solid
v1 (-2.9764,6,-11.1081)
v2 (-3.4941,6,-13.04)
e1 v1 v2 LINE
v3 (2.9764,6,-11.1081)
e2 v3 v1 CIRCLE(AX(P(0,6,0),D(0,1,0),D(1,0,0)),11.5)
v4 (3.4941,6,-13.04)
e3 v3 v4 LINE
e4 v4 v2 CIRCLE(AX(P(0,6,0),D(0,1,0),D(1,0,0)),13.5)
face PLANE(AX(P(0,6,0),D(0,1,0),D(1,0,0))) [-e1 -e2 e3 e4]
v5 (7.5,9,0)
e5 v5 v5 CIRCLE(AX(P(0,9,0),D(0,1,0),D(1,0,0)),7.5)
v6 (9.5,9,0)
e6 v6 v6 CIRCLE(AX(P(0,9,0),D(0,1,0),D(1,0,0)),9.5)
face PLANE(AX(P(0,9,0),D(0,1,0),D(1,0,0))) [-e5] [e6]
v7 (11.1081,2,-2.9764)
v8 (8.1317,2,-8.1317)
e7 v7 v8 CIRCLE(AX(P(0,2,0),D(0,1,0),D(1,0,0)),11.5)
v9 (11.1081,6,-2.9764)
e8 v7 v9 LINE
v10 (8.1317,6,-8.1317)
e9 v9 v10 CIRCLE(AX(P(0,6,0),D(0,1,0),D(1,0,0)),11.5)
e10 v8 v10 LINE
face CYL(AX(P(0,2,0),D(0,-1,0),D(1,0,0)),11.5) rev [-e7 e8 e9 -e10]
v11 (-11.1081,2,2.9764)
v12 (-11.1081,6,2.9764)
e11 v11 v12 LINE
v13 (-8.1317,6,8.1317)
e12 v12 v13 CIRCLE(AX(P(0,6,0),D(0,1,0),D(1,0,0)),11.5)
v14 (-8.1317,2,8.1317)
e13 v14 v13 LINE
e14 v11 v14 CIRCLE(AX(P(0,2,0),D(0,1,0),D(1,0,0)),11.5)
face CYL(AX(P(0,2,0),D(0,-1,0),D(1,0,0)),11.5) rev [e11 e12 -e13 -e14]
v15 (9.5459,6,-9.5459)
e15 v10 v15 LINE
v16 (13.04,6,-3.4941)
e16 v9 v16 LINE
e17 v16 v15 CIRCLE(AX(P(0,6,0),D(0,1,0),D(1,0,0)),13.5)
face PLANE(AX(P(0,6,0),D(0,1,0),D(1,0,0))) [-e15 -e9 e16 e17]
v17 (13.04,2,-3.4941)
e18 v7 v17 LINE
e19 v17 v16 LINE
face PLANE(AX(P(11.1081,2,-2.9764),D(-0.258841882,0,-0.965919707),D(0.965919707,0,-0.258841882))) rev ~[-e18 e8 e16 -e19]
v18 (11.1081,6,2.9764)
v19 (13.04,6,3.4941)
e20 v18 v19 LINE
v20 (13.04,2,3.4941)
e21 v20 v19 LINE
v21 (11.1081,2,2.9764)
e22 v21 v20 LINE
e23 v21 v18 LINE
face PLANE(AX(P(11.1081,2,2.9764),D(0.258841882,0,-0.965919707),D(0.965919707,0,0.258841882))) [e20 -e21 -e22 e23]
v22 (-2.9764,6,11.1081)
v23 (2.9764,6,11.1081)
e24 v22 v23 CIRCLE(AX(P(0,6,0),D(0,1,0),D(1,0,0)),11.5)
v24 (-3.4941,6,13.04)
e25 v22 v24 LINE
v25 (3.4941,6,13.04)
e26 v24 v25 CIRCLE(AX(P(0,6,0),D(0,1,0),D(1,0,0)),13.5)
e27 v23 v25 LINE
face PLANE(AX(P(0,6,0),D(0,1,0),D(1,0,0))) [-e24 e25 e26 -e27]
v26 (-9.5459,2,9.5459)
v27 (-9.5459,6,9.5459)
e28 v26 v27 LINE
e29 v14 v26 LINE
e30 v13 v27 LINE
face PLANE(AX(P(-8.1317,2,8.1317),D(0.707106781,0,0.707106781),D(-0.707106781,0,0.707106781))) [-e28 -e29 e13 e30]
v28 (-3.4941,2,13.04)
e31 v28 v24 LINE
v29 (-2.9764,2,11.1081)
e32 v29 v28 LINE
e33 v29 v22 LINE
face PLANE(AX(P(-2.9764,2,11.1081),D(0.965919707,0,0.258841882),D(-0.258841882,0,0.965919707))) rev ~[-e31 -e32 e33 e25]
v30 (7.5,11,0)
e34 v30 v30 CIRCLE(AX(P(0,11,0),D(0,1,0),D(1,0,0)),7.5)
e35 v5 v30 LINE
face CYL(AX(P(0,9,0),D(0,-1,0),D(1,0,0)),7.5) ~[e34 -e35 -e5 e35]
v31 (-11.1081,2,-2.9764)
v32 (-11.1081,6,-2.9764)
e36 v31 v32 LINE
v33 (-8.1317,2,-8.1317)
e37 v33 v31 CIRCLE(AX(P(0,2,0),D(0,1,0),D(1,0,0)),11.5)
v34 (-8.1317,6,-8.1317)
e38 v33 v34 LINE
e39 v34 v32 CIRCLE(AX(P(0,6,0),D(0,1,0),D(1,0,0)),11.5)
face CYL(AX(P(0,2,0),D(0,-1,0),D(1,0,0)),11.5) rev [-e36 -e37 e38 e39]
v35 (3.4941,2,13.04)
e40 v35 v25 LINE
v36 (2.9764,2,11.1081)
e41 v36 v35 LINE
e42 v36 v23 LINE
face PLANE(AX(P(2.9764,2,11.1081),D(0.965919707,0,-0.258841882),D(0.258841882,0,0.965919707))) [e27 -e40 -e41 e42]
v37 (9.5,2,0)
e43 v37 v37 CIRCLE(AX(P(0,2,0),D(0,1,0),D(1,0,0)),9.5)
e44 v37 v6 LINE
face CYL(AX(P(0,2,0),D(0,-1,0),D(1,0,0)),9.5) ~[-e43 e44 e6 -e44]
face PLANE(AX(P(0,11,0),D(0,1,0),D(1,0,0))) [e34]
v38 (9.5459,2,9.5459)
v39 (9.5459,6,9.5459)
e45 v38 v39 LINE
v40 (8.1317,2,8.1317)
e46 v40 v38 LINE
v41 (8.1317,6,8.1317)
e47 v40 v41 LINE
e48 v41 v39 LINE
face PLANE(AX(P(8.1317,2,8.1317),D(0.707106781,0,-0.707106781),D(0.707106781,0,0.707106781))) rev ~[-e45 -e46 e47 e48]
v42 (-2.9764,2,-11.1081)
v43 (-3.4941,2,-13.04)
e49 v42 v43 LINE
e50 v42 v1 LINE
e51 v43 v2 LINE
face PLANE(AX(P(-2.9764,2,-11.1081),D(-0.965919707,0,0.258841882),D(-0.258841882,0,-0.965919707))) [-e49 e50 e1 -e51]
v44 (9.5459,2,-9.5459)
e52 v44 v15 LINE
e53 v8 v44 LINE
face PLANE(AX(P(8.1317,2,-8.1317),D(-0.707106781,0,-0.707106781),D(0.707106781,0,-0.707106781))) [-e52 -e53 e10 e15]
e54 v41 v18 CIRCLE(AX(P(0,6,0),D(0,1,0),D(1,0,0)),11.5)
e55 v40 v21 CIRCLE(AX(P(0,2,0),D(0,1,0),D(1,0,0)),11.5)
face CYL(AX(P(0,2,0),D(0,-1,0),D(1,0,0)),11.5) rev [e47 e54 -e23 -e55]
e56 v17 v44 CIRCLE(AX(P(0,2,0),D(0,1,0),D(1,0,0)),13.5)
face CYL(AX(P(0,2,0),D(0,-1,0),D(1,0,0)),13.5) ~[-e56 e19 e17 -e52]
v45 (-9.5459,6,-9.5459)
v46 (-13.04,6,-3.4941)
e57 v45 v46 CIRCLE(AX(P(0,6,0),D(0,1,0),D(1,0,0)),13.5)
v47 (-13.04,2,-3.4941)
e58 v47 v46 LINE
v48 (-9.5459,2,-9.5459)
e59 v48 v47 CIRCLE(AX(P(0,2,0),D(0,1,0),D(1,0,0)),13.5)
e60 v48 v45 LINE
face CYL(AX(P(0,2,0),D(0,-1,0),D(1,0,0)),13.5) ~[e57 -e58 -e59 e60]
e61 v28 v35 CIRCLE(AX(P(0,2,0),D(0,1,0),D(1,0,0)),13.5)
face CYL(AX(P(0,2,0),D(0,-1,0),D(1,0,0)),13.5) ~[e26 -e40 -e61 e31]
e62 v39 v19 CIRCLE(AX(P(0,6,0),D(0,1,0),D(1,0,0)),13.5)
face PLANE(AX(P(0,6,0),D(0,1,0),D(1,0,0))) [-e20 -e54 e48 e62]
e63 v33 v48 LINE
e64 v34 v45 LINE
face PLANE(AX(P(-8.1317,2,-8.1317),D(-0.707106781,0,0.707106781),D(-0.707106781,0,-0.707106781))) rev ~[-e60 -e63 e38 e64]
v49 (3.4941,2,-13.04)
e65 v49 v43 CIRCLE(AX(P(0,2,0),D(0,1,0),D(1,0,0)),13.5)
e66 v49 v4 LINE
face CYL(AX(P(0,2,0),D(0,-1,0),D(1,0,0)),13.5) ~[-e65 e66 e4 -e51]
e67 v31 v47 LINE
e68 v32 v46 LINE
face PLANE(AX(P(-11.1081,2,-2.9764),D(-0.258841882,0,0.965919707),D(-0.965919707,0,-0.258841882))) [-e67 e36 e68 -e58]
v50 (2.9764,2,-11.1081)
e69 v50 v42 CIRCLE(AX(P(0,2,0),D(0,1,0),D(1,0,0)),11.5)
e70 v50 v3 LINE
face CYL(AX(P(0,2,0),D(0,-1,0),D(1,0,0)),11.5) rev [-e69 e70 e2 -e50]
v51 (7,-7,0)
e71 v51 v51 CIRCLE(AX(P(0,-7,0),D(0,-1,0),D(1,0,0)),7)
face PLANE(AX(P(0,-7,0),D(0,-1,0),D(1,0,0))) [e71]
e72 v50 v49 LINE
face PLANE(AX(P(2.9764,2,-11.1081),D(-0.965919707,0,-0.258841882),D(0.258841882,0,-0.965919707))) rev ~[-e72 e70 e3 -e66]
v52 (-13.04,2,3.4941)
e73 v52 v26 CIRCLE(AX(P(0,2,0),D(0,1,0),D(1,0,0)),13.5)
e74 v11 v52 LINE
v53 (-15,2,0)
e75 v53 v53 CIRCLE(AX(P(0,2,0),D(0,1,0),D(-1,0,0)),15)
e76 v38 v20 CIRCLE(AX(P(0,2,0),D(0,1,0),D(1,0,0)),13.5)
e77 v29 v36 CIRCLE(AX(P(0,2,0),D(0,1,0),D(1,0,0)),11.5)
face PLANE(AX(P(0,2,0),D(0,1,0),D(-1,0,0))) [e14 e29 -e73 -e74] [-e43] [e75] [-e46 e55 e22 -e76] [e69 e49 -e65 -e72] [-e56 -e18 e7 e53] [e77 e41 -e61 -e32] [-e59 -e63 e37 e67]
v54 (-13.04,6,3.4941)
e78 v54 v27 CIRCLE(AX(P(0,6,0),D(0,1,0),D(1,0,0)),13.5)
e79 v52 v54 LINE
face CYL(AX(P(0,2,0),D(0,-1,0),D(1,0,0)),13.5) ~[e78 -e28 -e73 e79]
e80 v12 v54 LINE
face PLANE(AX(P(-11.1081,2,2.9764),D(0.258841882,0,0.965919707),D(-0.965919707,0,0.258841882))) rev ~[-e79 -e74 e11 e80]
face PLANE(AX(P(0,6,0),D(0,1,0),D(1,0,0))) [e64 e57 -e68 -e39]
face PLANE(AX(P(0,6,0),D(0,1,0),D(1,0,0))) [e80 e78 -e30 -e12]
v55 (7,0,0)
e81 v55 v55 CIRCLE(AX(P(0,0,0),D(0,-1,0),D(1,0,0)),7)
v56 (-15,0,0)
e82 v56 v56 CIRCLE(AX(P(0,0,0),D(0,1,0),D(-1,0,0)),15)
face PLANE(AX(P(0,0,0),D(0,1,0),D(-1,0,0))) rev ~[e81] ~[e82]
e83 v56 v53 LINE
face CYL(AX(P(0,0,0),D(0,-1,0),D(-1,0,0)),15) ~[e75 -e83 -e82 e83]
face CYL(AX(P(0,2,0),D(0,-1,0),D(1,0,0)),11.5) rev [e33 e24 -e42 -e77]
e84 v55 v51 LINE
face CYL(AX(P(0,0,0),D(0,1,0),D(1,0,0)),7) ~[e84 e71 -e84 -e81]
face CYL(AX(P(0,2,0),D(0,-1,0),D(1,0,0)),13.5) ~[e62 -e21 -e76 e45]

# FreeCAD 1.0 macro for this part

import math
import FreeCAD as App
import Part
import Sketcher
from FreeCAD import Vector

doc = App.newDocument("Part")
body = doc.addObject("PartDesign::Body", "Body")

# Sketch on XZ plane
sketch1 = body.newObject("Sketcher::SketchObject", "Sketch")
sketch1.AttachmentSupport = (doc.getObject("XZ_Plane"), [""])
sketch1.MapMode = "FlatFace"
sketch1.addGeometry(Part.Circle(Vector(0, 0, 0), Vector(0, 0, 1), 15), False)
sketch1.addConstraint(Sketcher.Constraint("Coincident", 0, 3, -1, 1))
sketch1.addConstraint(Sketcher.Constraint("Diameter", 0, 30.0))
pad1 = body.newObject("PartDesign::Pad", "Pad")
pad1.Profile = sketch1
pad1.Length = 2
pad1.Reversed = True

# Sketch on XZ plane
sketch2 = body.newObject("Sketcher::SketchObject", "Sketch001")
sketch2.AttachmentSupport = (doc.getObject("XZ_Plane"), [""])
sketch2.MapMode = "FlatFace"
sketch2.AttachmentOffset = App.Placement(Vector(0, 0, -2), App.Rotation())
sketch2.addGeometry(Part.LineSegment(Vector(11.1081, -2.9764, 0), Vector(13.04, -3.4941, 0)), False)
sketch2.addGeometry(Part.ArcOfCircle(Part.Circle(Vector(0, 0, 0), Vector(0, 0, 1), 13.5), math.radians(-45), math.radians(-15.000174)), False)
sketch2.addGeometry(Part.LineSegment(Vector(9.5459, -9.5459, 0), Vector(8.1317, -8.1317, 0)), False)
sketch2.addGeometry(Part.ArcOfCircle(Part.Circle(Vector(0, 0, 0), Vector(0, 0, 1), 11.5), math.radians(-45), math.radians(-14.999969)), False)
sketch2.addGeometry(Part.ArcOfCircle(Part.Circle(Vector(0, 0, 0), Vector(0, 0, 1), 13.5), math.radians(15.000174), math.radians(45)), False)
sketch2.addGeometry(Part.LineSegment(Vector(13.04, 3.4941, 0), Vector(11.1081, 2.9764, 0)), False)
sketch2.addGeometry(Part.ArcOfCircle(Part.Circle(Vector(0, 0, 0), Vector(0, 0, 1), 11.5), math.radians(14.999969), math.radians(45)), False)
sketch2.addGeometry(Part.LineSegment(Vector(8.1317, 8.1317, 0), Vector(9.5459, 9.5459, 0)), False)
sketch2.addGeometry(Part.LineSegment(Vector(2.9764, -11.1081, 0), Vector(3.4941, -13.04, 0)), False)
sketch2.addGeometry(Part.ArcOfCircle(Part.Circle(Vector(0, 0, 0), Vector(0, 0, 1), 13.5), math.radians(-105.000174), math.radians(-74.999826)), False)
sketch2.addGeometry(Part.LineSegment(Vector(-3.4941, -13.04, 0), Vector(-2.9764, -11.1081, 0)), False)
sketch2.addGeometry(Part.ArcOfCircle(Part.Circle(Vector(0, 0, 0), Vector(0, 0, 1), 11.5), math.radians(-104.999969), math.radians(-75.000031)), False)
sketch2.addGeometry(Part.ArcOfCircle(Part.Circle(Vector(0, 0, 0), Vector(0, 0, 1), 13.5), math.radians(74.999826), math.radians(105.000174)), False)
sketch2.addGeometry(Part.LineSegment(Vector(3.4941, 13.04, 0), Vector(2.9764, 11.1081, 0)), False)
sketch2.addGeometry(Part.ArcOfCircle(Part.Circle(Vector(0, 0, 0), Vector(0, 0, 1), 11.5), math.radians(75.000031), math.radians(104.999969)), False)
sketch2.addGeometry(Part.LineSegment(Vector(-2.9764, 11.1081, 0), Vector(-3.4941, 13.04, 0)), False)
sketch2.addGeometry(Part.LineSegment(Vector(-8.1317, -8.1317, 0), Vector(-9.5459, -9.5459, 0)), False)
sketch2.addGeometry(Part.ArcOfCircle(Part.Circle(Vector(0, 0, 0), Vector(0, 0, 1), 13.5), math.radians(-164.999826), math.radians(-135)), False)
sketch2.addGeometry(Part.LineSegment(Vector(-13.04, -3.4941, 0), Vector(-11.1081, -2.9764, 0)), False)
sketch2.addGeometry(Part.ArcOfCircle(Part.Circle(Vector(0, 0, 0), Vector(0, 0, 1), 11.5), math.radians(-165.000031), math.radians(-135)), False)
sketch2.addGeometry(Part.ArcOfCircle(Part.Circle(Vector(0, 0, 0), Vector(0, 0, 1), 13.5), math.radians(135), math.radians(164.999826)), False)
sketch2.addGeometry(Part.LineSegment(Vector(-9.5459, 9.5459, 0), Vector(-8.1317, 8.1317, 0)), False)
sketch2.addGeometry(Part.ArcOfCircle(Part.Circle(Vector(0, 0, 0), Vector(0, 0, 1), 11.5), math.radians(135), math.radians(165.000031)), False)
sketch2.addGeometry(Part.LineSegment(Vector(-11.1081, 2.9764, 0), Vector(-13.04, 3.4941, 0)), False)
sketch2.addConstraint(Sketcher.Constraint("Coincident", 0, 2, 1, 2))
sketch2.addConstraint(Sketcher.Constraint("Coincident", 1, 1, 2, 1))
sketch2.addConstraint(Sketcher.Constraint("Coincident", 2, 2, 3, 1))
sketch2.addConstraint(Sketcher.Constraint("Coincident", 3, 2, 0, 1))
sketch2.addConstraint(Sketcher.Constraint("Coincident", 4, 1, 5, 1))
sketch2.addConstraint(Sketcher.Constraint("Coincident", 5, 2, 6, 1))
sketch2.addConstraint(Sketcher.Constraint("Coincident", 6, 2, 7, 1))
sketch2.addConstraint(Sketcher.Constraint("Coincident", 7, 2, 4, 2))
sketch2.addConstraint(Sketcher.Constraint("Coincident", 8, 2, 9, 2))
sketch2.addConstraint(Sketcher.Constraint("Coincident", 9, 1, 10, 1))
sketch2.addConstraint(Sketcher.Constraint("Coincident", 10, 2, 11, 1))
sketch2.addConstraint(Sketcher.Constraint("Coincident", 11, 2, 8, 1))
sketch2.addConstraint(Sketcher.Constraint("Coincident", 12, 1, 13, 1))
sketch2.addConstraint(Sketcher.Constraint("Coincident", 13, 2, 14, 1))
sketch2.addConstraint(Sketcher.Constraint("Coincident", 14, 2, 15, 1))
sketch2.addConstraint(Sketcher.Constraint("Coincident", 15, 2, 12, 2))
sketch2.addConstraint(Sketcher.Constraint("Coincident", 16, 2, 17, 2))
sketch2.addConstraint(Sketcher.Constraint("Coincident", 17, 1, 18, 1))
sketch2.addConstraint(Sketcher.Constraint("Coincident", 18, 2, 19, 1))
sketch2.addConstraint(Sketcher.Constraint("Coincident", 19, 2, 16, 1))
sketch2.addConstraint(Sketcher.Constraint("Coincident", 20, 1, 21, 1))
sketch2.addConstraint(Sketcher.Constraint("Coincident", 21, 2, 22, 1))
sketch2.addConstraint(Sketcher.Constraint("Coincident", 22, 2, 23, 1))
sketch2.addConstraint(Sketcher.Constraint("Coincident", 23, 2, 20, 2))
sketch2.addConstraint(Sketcher.Constraint("Coincident", 1, 3, -1, 1))
sketch2.addConstraint(Sketcher.Constraint("Coincident", 3, 3, -1, 1))
sketch2.addConstraint(Sketcher.Constraint("Coincident", 4, 3, -1, 1))
sketch2.addConstraint(Sketcher.Constraint("Coincident", 6, 3, -1, 1))
sketch2.addConstraint(Sketcher.Constraint("Coincident", 9, 3, -1, 1))
sketch2.addConstraint(Sketcher.Constraint("Coincident", 11, 3, -1, 1))
sketch2.addConstraint(Sketcher.Constraint("Coincident", 12, 3, -1, 1))
sketch2.addConstraint(Sketcher.Constraint("Coincident", 14, 3, -1, 1))
sketch2.addConstraint(Sketcher.Constraint("Coincident", 17, 3, -1, 1))
sketch2.addConstraint(Sketcher.Constraint("Coincident", 19, 3, -1, 1))
sketch2.addConstraint(Sketcher.Constraint("Coincident", 20, 3, -1, 1))
sketch2.addConstraint(Sketcher.Constraint("Coincident", 22, 3, -1, 1))
sketch2.addConstraint(Sketcher.Constraint("Equal", 1, 4))
sketch2.addConstraint(Sketcher.Constraint("Equal", 3, 6))
sketch2.addConstraint(Sketcher.Constraint("Equal", 4, 9))
sketch2.addConstraint(Sketcher.Constraint("Equal", 6, 11))
sketch2.addConstraint(Sketcher.Constraint("Equal", 9, 12))
sketch2.addConstraint(Sketcher.Constraint("Equal", 11, 14))
sketch2.addConstraint(Sketcher.Constraint("Equal", 12, 17))
sketch2.addConstraint(Sketcher.Constraint("Equal", 14, 19))
sketch2.addConstraint(Sketcher.Constraint("Equal", 17, 20))
sketch2.addConstraint(Sketcher.Constraint("Equal", 19, 22))
sketch2.addConstraint(Sketcher.Constraint("Perpendicular", 2, 7))
sketch2.addConstraint(Sketcher.Constraint("Perpendicular", 5, 8))
sketch2.addConstraint(Sketcher.Constraint("Perpendicular", 0, 10))
sketch2.addConstraint(Sketcher.Constraint("Parallel", 10, 13))
sketch2.addConstraint(Sketcher.Constraint("Parallel", 8, 15))
sketch2.addConstraint(Sketcher.Constraint("Parallel", 7, 16))
sketch2.addConstraint(Sketcher.Constraint("Perpendicular", 15, 18))
sketch2.addConstraint(Sketcher.Constraint("Perpendicular", 16, 21))
sketch2.addConstraint(Sketcher.Constraint("Perpendicular", 13, 23))
sketch2.addConstraint(Sketcher.Constraint("Horizontal", 8, 2, 9, 1))
sketch2.addConstraint(Sketcher.Constraint("Horizontal", 10, 2, 11, 2))
sketch2.addConstraint(Sketcher.Constraint("Horizontal", 13, 2, 14, 2))
sketch2.addConstraint(Sketcher.Constraint("Horizontal", 1, 1, 16, 2))
sketch2.addConstraint(Sketcher.Constraint("Horizontal", 0, 2, 17, 1))
sketch2.addConstraint(Sketcher.Constraint("Horizontal", 2, 2, 19, 2))
sketch2.addConstraint(Sketcher.Constraint("Horizontal", 7, 2, 20, 1))
sketch2.addConstraint(Sketcher.Constraint("Horizontal", 5, 2, 22, 2))
sketch2.addConstraint(Sketcher.Constraint("Vertical", 0, 2, 4, 1))
sketch2.addConstraint(Sketcher.Constraint("Vertical", 2, 2, 6, 2))
sketch2.addConstraint(Sketcher.Constraint("Vertical", 8, 2, 12, 1))
sketch2.addConstraint(Sketcher.Constraint("Radius", 1, 13.5))
sketch2.addConstraint(Sketcher.Constraint("Radius", 3, 11.5))
sketch2.addConstraint(Sketcher.Constraint("DistanceX", -1, 1, 0, 2, 13.04))
sketch2.addConstraint(Sketcher.Constraint("DistanceY", 8, 2, -1, 1, 13.04))
sketch2.addConstraint(Sketcher.Constraint("DistanceX", -1, 1, 1, 1, 9.546))
sketch2.addConstraint(Sketcher.Constraint("DistanceX", -1, 1, 5, 2, 11.108))
pad2 = body.newObject("PartDesign::Pad", "Pad001")
pad2.Profile = sketch2
pad2.Length = 4
pad2.Reversed = True

# Sketch on XZ plane
sketch3 = body.newObject("Sketcher::SketchObject", "Sketch002")
sketch3.AttachmentSupport = (doc.getObject("XZ_Plane"), [""])
sketch3.MapMode = "FlatFace"
sketch3.AttachmentOffset = App.Placement(Vector(0, 0, -2), App.Rotation())
sketch3.addGeometry(Part.Circle(Vector(0, 0, 0), Vector(0, 0, 1), 9.5), False)
sketch3.addConstraint(Sketcher.Constraint("Coincident", 0, 3, -1, 1))
sketch3.addConstraint(Sketcher.Constraint("Diameter", 0, 19.0))
pad3 = body.newObject("PartDesign::Pad", "Pad002")
pad3.Profile = sketch3
pad3.Length = 7
pad3.Reversed = True

# Sketch on XZ plane
sketch4 = body.newObject("Sketcher::SketchObject", "Sketch003")
sketch4.AttachmentSupport = (doc.getObject("XZ_Plane"), [""])
sketch4.MapMode = "FlatFace"
sketch4.AttachmentOffset = App.Placement(Vector(0, 0, -9), App.Rotation())
sketch4.addGeometry(Part.Circle(Vector(0, 0, 0), Vector(0, 0, 1), 7.5), False)
sketch4.addConstraint(Sketcher.Constraint("Coincident", 0, 3, -1, 1))
sketch4.addConstraint(Sketcher.Constraint("Diameter", 0, 15.0))
pad4 = body.newObject("PartDesign::Pad", "Pad003")
pad4.Profile = sketch4
pad4.Length = 2
pad4.Reversed = True

# Sketch on XZ plane
sketch5 = body.newObject("Sketcher::SketchObject", "Sketch004")
sketch5.AttachmentSupport = (doc.getObject("XZ_Plane"), [""])
sketch5.MapMode = "FlatFace"
sketch5.addGeometry(Part.Circle(Vector(0, 0, 0), Vector(0, 0, 1), 7), False)
sketch5.addConstraint(Sketcher.Constraint("Coincident", 0, 3, -1, 1))
sketch5.addConstraint(Sketcher.Constraint("Diameter", 0, 14.0))
pad5 = body.newObject("PartDesign::Pad", "Pad004")
pad5.Profile = sketch5
pad5.Length = 7

doc.recompute()
